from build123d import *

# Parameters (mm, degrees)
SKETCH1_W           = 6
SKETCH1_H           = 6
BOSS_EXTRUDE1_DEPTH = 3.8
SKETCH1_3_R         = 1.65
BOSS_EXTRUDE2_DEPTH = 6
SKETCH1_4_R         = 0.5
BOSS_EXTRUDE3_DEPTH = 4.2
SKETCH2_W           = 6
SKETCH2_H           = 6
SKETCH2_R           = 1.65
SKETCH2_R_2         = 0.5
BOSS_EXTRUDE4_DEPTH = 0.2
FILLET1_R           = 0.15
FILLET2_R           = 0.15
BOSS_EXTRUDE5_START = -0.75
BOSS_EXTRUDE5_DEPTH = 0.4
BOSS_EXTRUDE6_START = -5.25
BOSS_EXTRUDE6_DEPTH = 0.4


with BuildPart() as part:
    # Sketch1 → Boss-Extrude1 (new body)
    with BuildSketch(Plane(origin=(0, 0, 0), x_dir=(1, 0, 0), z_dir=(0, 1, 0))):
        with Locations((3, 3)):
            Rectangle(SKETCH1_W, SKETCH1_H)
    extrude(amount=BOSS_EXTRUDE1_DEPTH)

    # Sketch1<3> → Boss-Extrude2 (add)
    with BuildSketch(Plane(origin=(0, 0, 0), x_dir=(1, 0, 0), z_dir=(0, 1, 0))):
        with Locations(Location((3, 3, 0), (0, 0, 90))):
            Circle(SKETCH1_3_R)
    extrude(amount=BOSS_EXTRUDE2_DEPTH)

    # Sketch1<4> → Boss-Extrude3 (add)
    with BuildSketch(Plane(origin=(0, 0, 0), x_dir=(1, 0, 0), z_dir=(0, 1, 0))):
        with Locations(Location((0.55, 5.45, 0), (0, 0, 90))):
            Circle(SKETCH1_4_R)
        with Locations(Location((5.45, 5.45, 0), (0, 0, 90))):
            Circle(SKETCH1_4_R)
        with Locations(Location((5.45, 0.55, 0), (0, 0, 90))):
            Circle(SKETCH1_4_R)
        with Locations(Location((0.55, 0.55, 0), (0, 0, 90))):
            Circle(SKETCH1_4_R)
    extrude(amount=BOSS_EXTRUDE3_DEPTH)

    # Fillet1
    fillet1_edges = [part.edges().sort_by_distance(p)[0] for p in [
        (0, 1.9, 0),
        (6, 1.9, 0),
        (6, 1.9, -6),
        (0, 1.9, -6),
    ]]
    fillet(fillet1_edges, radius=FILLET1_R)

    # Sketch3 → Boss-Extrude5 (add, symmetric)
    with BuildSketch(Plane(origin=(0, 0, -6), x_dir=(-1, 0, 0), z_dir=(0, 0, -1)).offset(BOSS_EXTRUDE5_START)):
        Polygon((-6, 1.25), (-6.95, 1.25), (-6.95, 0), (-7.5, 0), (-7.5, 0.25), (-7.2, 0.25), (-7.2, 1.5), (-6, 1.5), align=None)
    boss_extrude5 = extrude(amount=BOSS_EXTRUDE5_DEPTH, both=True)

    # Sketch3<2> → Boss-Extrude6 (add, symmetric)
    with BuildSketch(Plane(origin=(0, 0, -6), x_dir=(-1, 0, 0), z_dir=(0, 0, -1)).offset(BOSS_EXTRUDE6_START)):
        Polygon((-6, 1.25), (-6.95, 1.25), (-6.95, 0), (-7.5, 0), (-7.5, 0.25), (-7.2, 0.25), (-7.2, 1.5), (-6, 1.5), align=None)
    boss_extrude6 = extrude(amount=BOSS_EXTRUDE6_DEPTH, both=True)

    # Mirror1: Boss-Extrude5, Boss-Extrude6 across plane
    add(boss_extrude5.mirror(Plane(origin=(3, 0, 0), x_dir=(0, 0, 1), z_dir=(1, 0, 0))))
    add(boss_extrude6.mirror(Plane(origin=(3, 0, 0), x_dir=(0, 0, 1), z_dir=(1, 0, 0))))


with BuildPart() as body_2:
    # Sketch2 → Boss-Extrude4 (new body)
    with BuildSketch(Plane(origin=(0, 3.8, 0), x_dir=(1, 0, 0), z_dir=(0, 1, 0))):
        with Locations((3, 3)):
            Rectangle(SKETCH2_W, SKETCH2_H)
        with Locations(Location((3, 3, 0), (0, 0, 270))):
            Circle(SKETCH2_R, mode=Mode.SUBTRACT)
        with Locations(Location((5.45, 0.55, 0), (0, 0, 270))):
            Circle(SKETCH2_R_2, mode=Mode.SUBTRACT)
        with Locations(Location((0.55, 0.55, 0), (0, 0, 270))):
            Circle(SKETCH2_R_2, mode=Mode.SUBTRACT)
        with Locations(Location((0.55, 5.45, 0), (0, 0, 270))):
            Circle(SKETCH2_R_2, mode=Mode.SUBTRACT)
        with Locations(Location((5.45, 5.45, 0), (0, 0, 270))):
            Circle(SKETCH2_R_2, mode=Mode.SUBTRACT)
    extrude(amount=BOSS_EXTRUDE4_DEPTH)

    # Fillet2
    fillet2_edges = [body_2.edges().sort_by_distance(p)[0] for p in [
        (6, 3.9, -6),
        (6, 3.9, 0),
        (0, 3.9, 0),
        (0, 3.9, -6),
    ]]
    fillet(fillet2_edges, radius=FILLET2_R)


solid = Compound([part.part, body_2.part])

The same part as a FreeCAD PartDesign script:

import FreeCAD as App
import Part
import Sketcher


def edges_at(feature, points):
    """Names of the edges that pass closest to the given points."""
    edges = feature.Shape.Edges
    near = lambda p: min(range(len(edges)), key=lambda i: edges[i].distToShape(Part.Vertex(*p))[0])
    return sorted({f"Edge{near(p) + 1}" for p in points})

doc = App.newDocument("Part")
body = doc.addObject("PartDesign::Body", "Body")

# Sketch on XZ plane
sketch1 = body.newObject("Sketcher::SketchObject", "Sketch")
sketch1.AttachmentSupport = (doc.getObject("XZ_Plane"), [""])
sketch1.MapMode = "FlatFace"
sketch1.addGeometry(Part.LineSegment(App.Vector(0, -6, 0), App.Vector(0, 0, 0)), False)
sketch1.addGeometry(Part.LineSegment(App.Vector(0, 0, 0), App.Vector(6, 0, 0)), False)
sketch1.addGeometry(Part.LineSegment(App.Vector(6, 0, 0), App.Vector(6, -6, 0)), False)
sketch1.addGeometry(Part.LineSegment(App.Vector(6, -6, 0), App.Vector(0, -6, 0)), False)
sketch1.addConstraint(Sketcher.Constraint("Coincident", 0, 2, 1, 1))
sketch1.addConstraint(Sketcher.Constraint("Coincident", 1, 2, 2, 1))
sketch1.addConstraint(Sketcher.Constraint("Coincident", 2, 2, 3, 1))
sketch1.addConstraint(Sketcher.Constraint("Coincident", 3, 2, 0, 1))
sketch1.addConstraint(Sketcher.Constraint("Vertical", 0))
sketch1.addConstraint(Sketcher.Constraint("Horizontal", 1))
sketch1.addConstraint(Sketcher.Constraint("Vertical", 2))
sketch1.addConstraint(Sketcher.Constraint("Horizontal", 3))
sketch1.addConstraint(Sketcher.Constraint("Coincident", 0, 2, -1, 1))
sketch1.addConstraint(Sketcher.Constraint("Equal", 3, 0))
sketch1.addConstraint(Sketcher.Constraint("DistanceX", 1, 1, 1, 2, 6.0))
pad1 = body.newObject("PartDesign::Pad", "Pad")
pad1.Profile = sketch1
pad1.Length = 3.8
pad1.Reversed = True

# Sketch on XZ plane
sketch2 = body.newObject("Sketcher::SketchObject", "Sketch001")
sketch2.AttachmentSupport = (doc.getObject("XZ_Plane"), [""])
sketch2.MapMode = "FlatFace"
sketch2.addGeometry(Part.Circle(App.Vector(3, -3, 0), App.Vector(0, 0, 1), 1.6), False)
sketch2.addConstraint(Sketcher.Constraint("Diameter", 0, 3.3))
sketch2.addConstraint(Sketcher.Constraint("DistanceX", -1, 1, 0, 3, 3.0))
sketch2.addConstraint(Sketcher.Constraint("DistanceY", 0, 3, -1, 1, 3.0))
pad2 = body.newObject("PartDesign::Pad", "Pad001")
pad2.Profile = sketch2
pad2.Length = 6
pad2.Reversed = True

# Sketch on XZ plane
sketch3 = body.newObject("Sketcher::SketchObject", "Sketch002")
sketch3.AttachmentSupport = (doc.getObject("XZ_Plane"), [""])
sketch3.MapMode = "FlatFace"
sketch3.addGeometry(Part.Circle(App.Vector(0.6, -5.5, 0), App.Vector(0, 0, 1), 0.5), False)
sketch3.addGeometry(Part.Circle(App.Vector(5.5, -5.5, 0), App.Vector(0, 0, 1), 0.5), False)
sketch3.addGeometry(Part.Circle(App.Vector(5.5, -0.6, 0), App.Vector(0, 0, 1), 0.5), False)
sketch3.addGeometry(Part.Circle(App.Vector(0.6, -0.6, 0), App.Vector(0, 0, 1), 0.5), False)
sketch3.addConstraint(Sketcher.Constraint("Equal", 0, 1))
sketch3.addConstraint(Sketcher.Constraint("Equal", 1, 2))
sketch3.addConstraint(Sketcher.Constraint("Equal", 2, 3))
sketch3.addConstraint(Sketcher.Constraint("Horizontal", 0, 3, 1, 3))
sketch3.addConstraint(Sketcher.Constraint("Horizontal", 2, 3, 3, 3))
sketch3.addConstraint(Sketcher.Constraint("Vertical", 1, 3, 2, 3))
sketch3.addConstraint(Sketcher.Constraint("Vertical", 0, 3, 3, 3))
sketch3.addConstraint(Sketcher.Constraint("Diameter", 0, 1.0))
sketch3.addConstraint(Sketcher.Constraint("DistanceX", 0, 3, 1, 3, 4.9))
sketch3.addConstraint(Sketcher.Constraint("DistanceY", 1, 3, 2, 3, 4.9))
sketch3.addConstraint(Sketcher.Constraint("DistanceX", -1, 1, 0, 3, 0.55))
sketch3.addConstraint(Sketcher.Constraint("DistanceY", 0, 3, -1, 1, 5.45))
pad3 = body.newObject("PartDesign::Pad", "Pad002")
pad3.Profile = sketch3
pad3.Length = 4.2
pad3.Reversed = True
doc.recompute()

fillet = body.newObject("PartDesign::Fillet", "Fillet")
fillet.Base = (pad3, edges_at(pad3, [
    (0, 1.9, 0),
    (6, 1.9, 0),
    (6, 1.9, -6),
    (0, 1.9, -6),
]))
fillet.Radius = 0.15

# Sketch on XY plane
sketch4 = body.newObject("Sketcher::SketchObject", "Sketch003")
sketch4.AttachmentSupport = (doc.getObject("XY_Plane"), [""])
sketch4.MapMode = "FlatFace"
sketch4.AttachmentOffset = App.Placement(App.Vector(0, 0, -5.25), App.Rotation())
sketch4.addGeometry(Part.LineSegment(App.Vector(6.95, 1.25, 0), App.Vector(6, 1.25, 0)), False)
sketch4.addGeometry(Part.LineSegment(App.Vector(6, 1.25, 0), App.Vector(6, 1.5, 0)), False)
sketch4.addGeometry(Part.LineSegment(App.Vector(6, 1.5, 0), App.Vector(7.2, 1.5, 0)), False)
sketch4.addGeometry(Part.LineSegment(App.Vector(7.2, 1.5, 0), App.Vector(7.2, 0.25, 0)), False)
sketch4.addGeometry(Part.LineSegment(App.Vector(7.2, 0.25, 0), App.Vector(7.5, 0.25, 0)), False)
sketch4.addGeometry(Part.LineSegment(App.Vector(7.5, 0.25, 0), App.Vector(7.5, 0, 0)), False)
sketch4.addGeometry(Part.LineSegment(App.Vector(7.5, 0, 0), App.Vector(6.95, 0, 0)), False)
sketch4.addGeometry(Part.LineSegment(App.Vector(6.95, 0, 0), App.Vector(6.95, 1.25, 0)), False)
sketch4.addConstraint(Sketcher.Constraint("Coincident", 0, 2, 1, 1))
sketch4.addConstraint(Sketcher.Constraint("Coincident", 1, 2, 2, 1))
sketch4.addConstraint(Sketcher.Constraint("Coincident", 2, 2, 3, 1))
sketch4.addConstraint(Sketcher.Constraint("Coincident", 3, 2, 4, 1))
sketch4.addConstraint(Sketcher.Constraint("Coincident", 4, 2, 5, 1))
sketch4.addConstraint(Sketcher.Constraint("Coincident", 5, 2, 6, 1))
sketch4.addConstraint(Sketcher.Constraint("Coincident", 6, 2, 7, 1))
sketch4.addConstraint(Sketcher.Constraint("Coincident", 7, 2, 0, 1))
sketch4.addConstraint(Sketcher.Constraint("Horizontal", 0))
sketch4.addConstraint(Sketcher.Constraint("Vertical", 1))
sketch4.addConstraint(Sketcher.Constraint("Horizontal", 2))
sketch4.addConstraint(Sketcher.Constraint("Vertical", 3))
sketch4.addConstraint(Sketcher.Constraint("Horizontal", 4))
sketch4.addConstraint(Sketcher.Constraint("Vertical", 5))
sketch4.addConstraint(Sketcher.Constraint("Horizontal", 6))
sketch4.addConstraint(Sketcher.Constraint("Vertical", 7))
sketch4.addConstraint(Sketcher.Constraint("PointOnObject", 5, 2, -1))
sketch4.addConstraint(Sketcher.Constraint("Equal", 1, 5))
sketch4.addConstraint(Sketcher.Constraint("DistanceX", 2, 1, 2, 2, 1.2))
sketch4.addConstraint(Sketcher.Constraint("DistanceX", 4, 1, 4, 2, 0.3))
sketch4.addConstraint(Sketcher.Constraint("DistanceX", -1, 1, 0, 2, 6.0))
sketch4.addConstraint(Sketcher.Constraint("DistanceY", 3, 2, 0, 2, 1.0))
sketch4.addConstraint(Sketcher.Constraint("DistanceX", 0, 2, 0, 1, 0.95))
sketch4.addConstraint(Sketcher.Constraint("DistanceY", 1, 1, 1, 2, 0.25))
pad4 = body.newObject("PartDesign::Pad", "Pad003")
pad4.Profile = sketch4
pad4.Length = 0.8
pad4.Midplane = True

# Sketch on XY plane
sketch5 = body.newObject("Sketcher::SketchObject", "Sketch004")
sketch5.AttachmentSupport = (doc.getObject("XY_Plane"), [""])
sketch5.MapMode = "FlatFace"
sketch5.AttachmentOffset = App.Placement(App.Vector(0, 0, -0.75), App.Rotation())
sketch5.addGeometry(Part.LineSegment(App.Vector(6.95, 1.25, 0), App.Vector(6, 1.25, 0)), False)
sketch5.addGeometry(Part.LineSegment(App.Vector(6, 1.25, 0), App.Vector(6, 1.5, 0)), False)
sketch5.addGeometry(Part.LineSegment(App.Vector(6, 1.5, 0), App.Vector(7.2, 1.5, 0)), False)
sketch5.addGeometry(Part.LineSegment(App.Vector(7.2, 1.5, 0), App.Vector(7.2, 0.25, 0)), False)
sketch5.addGeometry(Part.LineSegment(App.Vector(7.2, 0.25, 0), App.Vector(7.5, 0.25, 0)), False)
sketch5.addGeometry(Part.LineSegment(App.Vector(7.5, 0.25, 0), App.Vector(7.5, 0, 0)), False)
sketch5.addGeometry(Part.LineSegment(App.Vector(7.5, 0, 0), App.Vector(6.95, 0, 0)), False)
sketch5.addGeometry(Part.LineSegment(App.Vector(6.95, 0, 0), App.Vector(6.95, 1.25, 0)), False)
sketch5.addConstraint(Sketcher.Constraint("Coincident", 0, 2, 1, 1))
sketch5.addConstraint(Sketcher.Constraint("Coincident", 1, 2, 2, 1))
sketch5.addConstraint(Sketcher.Constraint("Coincident", 2, 2, 3, 1))
sketch5.addConstraint(Sketcher.Constraint("Coincident", 3, 2, 4, 1))
sketch5.addConstraint(Sketcher.Constraint("Coincident", 4, 2, 5, 1))
sketch5.addConstraint(Sketcher.Constraint("Coincident", 5, 2, 6, 1))
sketch5.addConstraint(Sketcher.Constraint("Coincident", 6, 2, 7, 1))
sketch5.addConstraint(Sketcher.Constraint("Coincident", 7, 2, 0, 1))
sketch5.addConstraint(Sketcher.Constraint("Horizontal", 0))
sketch5.addConstraint(Sketcher.Constraint("Vertical", 1))
sketch5.addConstraint(Sketcher.Constraint("Horizontal", 2))
sketch5.addConstraint(Sketcher.Constraint("Vertical", 3))
sketch5.addConstraint(Sketcher.Constraint("Horizontal", 4))
sketch5.addConstraint(Sketcher.Constraint("Vertical", 5))
sketch5.addConstraint(Sketcher.Constraint("Horizontal", 6))
sketch5.addConstraint(Sketcher.Constraint("Vertical", 7))
sketch5.addConstraint(Sketcher.Constraint("PointOnObject", 5, 2, -1))
sketch5.addConstraint(Sketcher.Constraint("Equal", 1, 5))
sketch5.addConstraint(Sketcher.Constraint("DistanceX", 2, 1, 2, 2, 1.2))
sketch5.addConstraint(Sketcher.Constraint("DistanceX", 4, 1, 4, 2, 0.3))
sketch5.addConstraint(Sketcher.Constraint("DistanceX", -1, 1, 0, 2, 6.0))
sketch5.addConstraint(Sketcher.Constraint("DistanceY", 3, 2, 0, 2, 1.0))
sketch5.addConstraint(Sketcher.Constraint("DistanceX", 0, 2, 0, 1, 0.95))
sketch5.addConstraint(Sketcher.Constraint("DistanceY", 1, 1, 1, 2, 0.25))
pad5 = body.newObject("PartDesign::Pad", "Pad004")
pad5.Profile = sketch5
pad5.Length = 0.8
pad5.Midplane = True
doc.recompute()

datumplane = body.newObject("PartDesign::Plane", "DatumPlane")
datumplane.AttachmentSupport = (doc.getObject("YZ_Plane"), [""])
datumplane.MapMode = "FlatFace"
datumplane.AttachmentOffset = App.Placement(App.Vector(0, 0, 3), App.Rotation())
mirrored = body.newObject("PartDesign::Mirrored", "Mirrored")
mirrored.Originals = [pad4, pad5]
mirrored.MirrorPlane = (datumplane, [""])
body.Tip = mirrored
body2 = doc.addObject("PartDesign::Body", "Body001")

# Sketch on XZ plane
sketch6 = body2.newObject("Sketcher::SketchObject", "Sketch005")
sketch6.AttachmentSupport = (doc.getObject("XZ_Plane001"), [""])
sketch6.MapMode = "FlatFace"
sketch6.AttachmentOffset = App.Placement(App.Vector(0, 0, -3.8), App.Rotation())
sketch6.addGeometry(Part.LineSegment(App.Vector(0, -6, 0), App.Vector(0, 0, 0)), False)
sketch6.addGeometry(Part.LineSegment(App.Vector(0, 0, 0), App.Vector(6, 0, 0)), False)
sketch6.addGeometry(Part.LineSegment(App.Vector(6, 0, 0), App.Vector(6, -6, 0)), False)
sketch6.addGeometry(Part.LineSegment(App.Vector(6, -6, 0), App.Vector(0, -6, 0)), False)
sketch6.addGeometry(Part.Circle(App.Vector(0.6, -0.6, 0), App.Vector(0, 0, 1), 0.5), False)
sketch6.addGeometry(Part.Circle(App.Vector(5.5, -0.6, 0), App.Vector(0, 0, 1), 0.5), False)
sketch6.addGeometry(Part.Circle(App.Vector(0.6, -5.5, 0), App.Vector(0, 0, 1), 0.5), False)
sketch6.addGeometry(Part.Circle(App.Vector(3, -3, 0), App.Vector(0, 0, 1), 1.6), False)
sketch6.addGeometry(Part.Circle(App.Vector(5.5, -5.5, 0), App.Vector(0, 0, 1), 0.5), False)
sketch6.addConstraint(Sketcher.Constraint("Coincident", 0, 2, 1, 1))
sketch6.addConstraint(Sketcher.Constraint("Coincident", 1, 2, 2, 1))
sketch6.addConstraint(Sketcher.Constraint("Coincident", 2, 2, 3, 1))
sketch6.addConstraint(Sketcher.Constraint("Coincident", 3, 2, 0, 1))
sketch6.addConstraint(Sketcher.Constraint("Vertical", 0))
sketch6.addConstraint(Sketcher.Constraint("Horizontal", 1))
sketch6.addConstraint(Sketcher.Constraint("Vertical", 2))
sketch6.addConstraint(Sketcher.Constraint("Horizontal", 3))
sketch6.addConstraint(Sketcher.Constraint("Coincident", 0, 2, -1, 1))
sketch6.addConstraint(Sketcher.Constraint("Equal", 4, 5))
sketch6.addConstraint(Sketcher.Constraint("Equal", 5, 6))
sketch6.addConstraint(Sketcher.Constraint("Equal", 6, 8))
sketch6.addConstraint(Sketcher.Constraint("Horizontal", 4, 3, 5, 3))
sketch6.addConstraint(Sketcher.Constraint("Horizontal", 6, 3, 8, 3))
sketch6.addConstraint(Sketcher.Constraint("Vertical", 4, 3, 6, 3))
sketch6.addConstraint(Sketcher.Constraint("Vertical", 5, 3, 8, 3))
sketch6.addConstraint(Sketcher.Constraint("Equal", 3, 0))
sketch6.addConstraint(Sketcher.Constraint("Diameter", 4, 1.0))
sketch6.addConstraint(Sketcher.Constraint("Diameter", 7, 3.3))
sketch6.addConstraint(Sketcher.Constraint("DistanceX", 1, 1, 1, 2, 6.0))
sketch6.addConstraint(Sketcher.Constraint("DistanceX", -1, 1, 7, 3, 3.0))
sketch6.addConstraint(Sketcher.Constraint("DistanceY", 7, 3, -1, 1, 3.0))
sketch6.addConstraint(Sketcher.Constraint("DistanceX", 4, 3, 5, 3, 4.9))
sketch6.addConstraint(Sketcher.Constraint("DistanceY", 6, 3, 4, 3, 4.9))
sketch6.addConstraint(Sketcher.Constraint("DistanceX", -1, 1, 4, 3, 0.55))
sketch6.addConstraint(Sketcher.Constraint("DistanceY", 4, 3, -1, 1, 0.55))
pad6 = body2.newObject("PartDesign::Pad", "Pad005")
pad6.Profile = sketch6
pad6.Length = 0.2
pad6.Reversed = True
doc.recompute()

fillet2 = body2.newObject("PartDesign::Fillet", "Fillet001")
fillet2.Base = (pad6, edges_at(pad6, [
    (6, 3.9, -6),
    (6, 3.9, 0),
    (0, 3.9, 0),
    (0, 3.9, -6),
]))
fillet2.Radius = 0.15

doc.recompute()
